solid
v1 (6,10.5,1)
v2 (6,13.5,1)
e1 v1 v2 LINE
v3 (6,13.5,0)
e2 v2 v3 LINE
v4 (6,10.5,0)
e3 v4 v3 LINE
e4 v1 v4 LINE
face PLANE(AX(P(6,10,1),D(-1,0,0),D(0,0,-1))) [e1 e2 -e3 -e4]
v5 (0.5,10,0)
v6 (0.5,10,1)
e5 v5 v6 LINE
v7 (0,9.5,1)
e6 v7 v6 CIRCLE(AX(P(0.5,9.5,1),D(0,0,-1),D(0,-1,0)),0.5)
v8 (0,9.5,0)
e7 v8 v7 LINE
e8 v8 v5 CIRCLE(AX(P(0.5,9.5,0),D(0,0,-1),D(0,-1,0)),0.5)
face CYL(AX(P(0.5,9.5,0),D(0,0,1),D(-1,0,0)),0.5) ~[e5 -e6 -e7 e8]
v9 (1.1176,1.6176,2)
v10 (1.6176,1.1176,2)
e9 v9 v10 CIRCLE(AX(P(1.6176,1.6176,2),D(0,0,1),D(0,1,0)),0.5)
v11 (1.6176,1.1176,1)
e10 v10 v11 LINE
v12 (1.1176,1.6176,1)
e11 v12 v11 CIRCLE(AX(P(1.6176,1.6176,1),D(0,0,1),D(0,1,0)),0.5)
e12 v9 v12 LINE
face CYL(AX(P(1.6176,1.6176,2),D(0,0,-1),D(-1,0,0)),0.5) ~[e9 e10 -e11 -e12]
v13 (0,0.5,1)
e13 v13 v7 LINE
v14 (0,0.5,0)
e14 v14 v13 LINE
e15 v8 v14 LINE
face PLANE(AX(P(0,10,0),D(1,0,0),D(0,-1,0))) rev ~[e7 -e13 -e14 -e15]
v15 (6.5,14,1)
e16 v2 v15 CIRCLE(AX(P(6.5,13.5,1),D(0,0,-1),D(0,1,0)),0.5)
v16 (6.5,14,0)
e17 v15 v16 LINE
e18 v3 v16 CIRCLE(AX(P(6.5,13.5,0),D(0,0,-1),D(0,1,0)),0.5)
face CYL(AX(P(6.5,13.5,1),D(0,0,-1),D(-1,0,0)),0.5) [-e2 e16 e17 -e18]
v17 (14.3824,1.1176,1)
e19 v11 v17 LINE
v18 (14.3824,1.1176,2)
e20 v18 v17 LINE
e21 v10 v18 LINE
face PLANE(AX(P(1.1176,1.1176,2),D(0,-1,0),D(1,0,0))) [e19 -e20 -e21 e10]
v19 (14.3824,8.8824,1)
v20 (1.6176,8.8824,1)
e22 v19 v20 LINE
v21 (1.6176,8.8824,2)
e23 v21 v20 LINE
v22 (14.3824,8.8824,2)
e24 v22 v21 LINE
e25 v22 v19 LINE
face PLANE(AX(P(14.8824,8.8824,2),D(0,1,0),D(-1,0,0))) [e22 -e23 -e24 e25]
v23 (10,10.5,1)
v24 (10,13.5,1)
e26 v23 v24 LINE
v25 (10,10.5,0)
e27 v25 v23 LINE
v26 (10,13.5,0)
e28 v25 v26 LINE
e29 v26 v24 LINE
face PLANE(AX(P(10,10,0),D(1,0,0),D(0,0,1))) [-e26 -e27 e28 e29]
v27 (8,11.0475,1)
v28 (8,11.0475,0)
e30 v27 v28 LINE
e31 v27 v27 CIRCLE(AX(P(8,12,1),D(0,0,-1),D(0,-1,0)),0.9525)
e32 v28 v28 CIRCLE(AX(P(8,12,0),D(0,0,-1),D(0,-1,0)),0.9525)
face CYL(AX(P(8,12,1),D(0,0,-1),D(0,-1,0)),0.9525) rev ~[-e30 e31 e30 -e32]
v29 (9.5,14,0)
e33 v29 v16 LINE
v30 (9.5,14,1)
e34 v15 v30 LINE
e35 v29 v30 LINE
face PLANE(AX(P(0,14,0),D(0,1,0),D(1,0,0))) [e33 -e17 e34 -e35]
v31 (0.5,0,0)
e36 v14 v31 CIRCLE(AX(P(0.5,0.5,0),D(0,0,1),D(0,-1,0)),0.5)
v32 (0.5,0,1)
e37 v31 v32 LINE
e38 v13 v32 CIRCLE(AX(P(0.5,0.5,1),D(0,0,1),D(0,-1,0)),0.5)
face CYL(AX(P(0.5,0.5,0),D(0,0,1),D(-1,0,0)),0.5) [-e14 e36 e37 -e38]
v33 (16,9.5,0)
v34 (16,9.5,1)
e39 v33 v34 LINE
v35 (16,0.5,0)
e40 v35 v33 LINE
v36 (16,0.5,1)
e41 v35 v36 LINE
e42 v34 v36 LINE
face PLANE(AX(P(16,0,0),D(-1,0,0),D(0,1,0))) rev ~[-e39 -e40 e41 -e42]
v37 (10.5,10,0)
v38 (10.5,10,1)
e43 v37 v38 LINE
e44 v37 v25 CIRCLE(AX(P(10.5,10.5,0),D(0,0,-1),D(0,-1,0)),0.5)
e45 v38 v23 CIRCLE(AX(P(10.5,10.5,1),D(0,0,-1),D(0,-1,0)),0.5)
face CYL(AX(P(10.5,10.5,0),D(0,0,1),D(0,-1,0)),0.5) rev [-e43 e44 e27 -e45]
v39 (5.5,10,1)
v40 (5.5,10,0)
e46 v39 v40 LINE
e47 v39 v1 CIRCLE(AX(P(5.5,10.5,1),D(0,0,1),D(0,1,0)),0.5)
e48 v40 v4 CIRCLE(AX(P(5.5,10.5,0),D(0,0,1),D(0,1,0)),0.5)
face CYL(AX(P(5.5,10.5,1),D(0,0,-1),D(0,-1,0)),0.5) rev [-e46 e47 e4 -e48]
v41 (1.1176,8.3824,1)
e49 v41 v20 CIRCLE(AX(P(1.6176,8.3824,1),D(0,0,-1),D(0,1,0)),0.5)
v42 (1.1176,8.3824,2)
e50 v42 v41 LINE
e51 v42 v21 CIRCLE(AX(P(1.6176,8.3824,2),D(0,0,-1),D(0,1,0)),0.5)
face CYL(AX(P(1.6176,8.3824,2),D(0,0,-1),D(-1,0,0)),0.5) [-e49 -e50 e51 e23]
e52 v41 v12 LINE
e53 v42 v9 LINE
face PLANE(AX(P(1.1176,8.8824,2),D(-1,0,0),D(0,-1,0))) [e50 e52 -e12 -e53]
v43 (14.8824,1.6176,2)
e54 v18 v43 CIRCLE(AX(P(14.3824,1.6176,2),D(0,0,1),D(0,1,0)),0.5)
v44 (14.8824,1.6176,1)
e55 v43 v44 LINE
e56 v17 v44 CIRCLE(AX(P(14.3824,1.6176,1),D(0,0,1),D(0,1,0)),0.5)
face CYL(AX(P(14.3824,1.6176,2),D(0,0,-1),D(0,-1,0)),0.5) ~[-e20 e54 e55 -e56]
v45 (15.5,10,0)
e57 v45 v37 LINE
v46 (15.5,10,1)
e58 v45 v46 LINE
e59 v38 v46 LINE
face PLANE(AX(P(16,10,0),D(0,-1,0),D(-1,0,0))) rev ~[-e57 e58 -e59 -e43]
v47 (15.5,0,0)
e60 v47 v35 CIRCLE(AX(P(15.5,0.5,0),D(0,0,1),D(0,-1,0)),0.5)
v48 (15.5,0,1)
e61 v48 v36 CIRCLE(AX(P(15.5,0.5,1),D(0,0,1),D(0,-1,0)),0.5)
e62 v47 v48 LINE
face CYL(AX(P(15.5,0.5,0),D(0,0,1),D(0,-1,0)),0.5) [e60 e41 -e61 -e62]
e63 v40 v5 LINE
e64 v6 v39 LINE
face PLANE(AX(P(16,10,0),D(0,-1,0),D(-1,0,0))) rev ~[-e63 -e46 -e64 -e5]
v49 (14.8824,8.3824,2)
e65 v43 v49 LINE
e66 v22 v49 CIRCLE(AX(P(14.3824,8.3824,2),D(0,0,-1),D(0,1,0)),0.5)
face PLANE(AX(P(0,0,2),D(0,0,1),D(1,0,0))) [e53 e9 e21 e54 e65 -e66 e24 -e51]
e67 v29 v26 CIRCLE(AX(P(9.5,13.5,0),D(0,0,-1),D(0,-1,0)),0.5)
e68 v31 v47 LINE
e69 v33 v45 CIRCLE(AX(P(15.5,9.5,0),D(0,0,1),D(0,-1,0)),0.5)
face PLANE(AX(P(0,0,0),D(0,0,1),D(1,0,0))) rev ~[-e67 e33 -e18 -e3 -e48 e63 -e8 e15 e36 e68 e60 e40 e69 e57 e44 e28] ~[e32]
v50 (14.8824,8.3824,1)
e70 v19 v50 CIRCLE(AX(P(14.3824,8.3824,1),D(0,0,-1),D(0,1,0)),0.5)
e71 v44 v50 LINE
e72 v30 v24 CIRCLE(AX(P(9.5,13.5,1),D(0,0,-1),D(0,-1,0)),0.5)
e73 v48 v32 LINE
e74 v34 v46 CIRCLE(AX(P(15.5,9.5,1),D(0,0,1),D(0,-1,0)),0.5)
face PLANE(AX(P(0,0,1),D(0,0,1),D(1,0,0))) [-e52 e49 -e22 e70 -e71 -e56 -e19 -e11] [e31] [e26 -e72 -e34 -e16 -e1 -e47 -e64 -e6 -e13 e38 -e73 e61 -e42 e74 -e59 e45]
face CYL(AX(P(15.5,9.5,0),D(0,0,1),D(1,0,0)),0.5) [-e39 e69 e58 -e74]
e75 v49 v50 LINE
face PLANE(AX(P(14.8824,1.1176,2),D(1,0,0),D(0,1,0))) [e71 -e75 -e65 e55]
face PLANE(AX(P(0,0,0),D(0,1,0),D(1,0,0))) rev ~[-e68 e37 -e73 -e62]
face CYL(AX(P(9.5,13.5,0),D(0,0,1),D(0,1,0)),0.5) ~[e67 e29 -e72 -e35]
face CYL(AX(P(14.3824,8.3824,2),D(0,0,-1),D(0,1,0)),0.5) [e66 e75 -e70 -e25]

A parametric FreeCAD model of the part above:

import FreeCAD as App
import Part
import Sketcher


def edges_at(feature, points):
    """Names of the edges that pass closest to the given points."""
    edges = feature.Shape.Edges
    near = lambda p: min(range(len(edges)), key=lambda i: edges[i].distToShape(Part.Vertex(*p))[0])
    return sorted({f"Edge{near(p) + 1}" for p in points})

doc = App.newDocument("Part")
body = doc.addObject("PartDesign::Body", "Body")

# Sketch on XY plane
sketch1 = doc.addObject("Sketcher::SketchObject", "Sketch")
body.addObject(sketch1)
sketch1.AttachmentSupport = (doc.XY_Plane, [""])
sketch1.MapMode = "FlatFace"
sketch1.addGeometry([
    Part.LineSegment(App.Vector(0, 10, 0), App.Vector(0, 0, 0)),
    Part.LineSegment(App.Vector(0, 0, 0), App.Vector(16, 0, 0)),
    Part.LineSegment(App.Vector(16, 0, 0), App.Vector(16, 10, 0)),
    Part.LineSegment(App.Vector(16, 10, 0), App.Vector(0, 10, 0)),
], False)
sketch1.addConstraint([
    Sketcher.Constraint("Coincident", 0, 2, 1, 1),
    Sketcher.Constraint("Coincident", 1, 2, 2, 1),
    Sketcher.Constraint("Coincident", 2, 2, 3, 1),
    Sketcher.Constraint("Coincident", 3, 2, 0, 1),
    Sketcher.Constraint("Vertical", 0),
    Sketcher.Constraint("Horizontal", 1),
    Sketcher.Constraint("Vertical", 2),
    Sketcher.Constraint("Horizontal", 3),
    Sketcher.Constraint("Coincident", 0, 2, -1, 1),
    Sketcher.Constraint("DistanceX", 1, 1, 1, 2, 16.0),
    Sketcher.Constraint("DistanceY", 0, 2, 0, 1, 10.0),
])
pad1 = doc.addObject("PartDesign::Pad", "Pad")
body.addObject(pad1)
pad1.Profile = sketch1
pad1.Length = 2

# Sketch on XY plane
sketch2 = doc.addObject("Sketcher::SketchObject", "Sketch001")
body.addObject(sketch2)
sketch2.AttachmentSupport = (doc.XY_Plane, [""])
sketch2.MapMode = "FlatFace"
sketch2.AttachmentOffset = App.Placement(App.Vector(0, 0, 2), App.Rotation())
sketch2.addGeometry([
    Part.LineSegment(App.Vector(0, 10, 0), App.Vector(0, 0, 0)),  # 0
    Part.LineSegment(App.Vector(0, 0, 0), App.Vector(16, 0, 0)),  # 1
    Part.LineSegment(App.Vector(16, 0, 0), App.Vector(16, 10, 0)),  # 2
    Part.LineSegment(App.Vector(16, 10, 0), App.Vector(0, 10, 0)),  # 3
    Part.LineSegment(App.Vector(1, 1, 0), App.Vector(1, 9, 0)),  # 4
    Part.LineSegment(App.Vector(1, 9, 0), App.Vector(15, 9, 0)),  # 5
    Part.LineSegment(App.Vector(15, 9, 0), App.Vector(15, 1, 0)),  # 6
    Part.LineSegment(App.Vector(15, 1, 0), App.Vector(1, 1, 0)),  # 7
], False)
sketch2.addConstraint([
    Sketcher.Constraint("Coincident", 0, 2, 1, 1),
    Sketcher.Constraint("Coincident", 1, 2, 2, 1),
    Sketcher.Constraint("Coincident", 2, 2, 3, 1),
    Sketcher.Constraint("Coincident", 3, 2, 0, 1),
    Sketcher.Constraint("Coincident", 4, 2, 5, 1),
    Sketcher.Constraint("Coincident", 5, 2, 6, 1),
    Sketcher.Constraint("Coincident", 6, 2, 7, 1),
    Sketcher.Constraint("Coincident", 7, 2, 4, 1),
    Sketcher.Constraint("Vertical", 0),
    Sketcher.Constraint("Horizontal", 1),
    Sketcher.Constraint("Vertical", 2),
    Sketcher.Constraint("Horizontal", 3),
    Sketcher.Constraint("Vertical", 4),
    Sketcher.Constraint("Horizontal", 5),
    Sketcher.Constraint("Vertical", 6),
    Sketcher.Constraint("Horizontal", 7),
    Sketcher.Constraint("Coincident", 0, 2, -1, 1),
    Sketcher.Constraint("DistanceX", 1, 1, 1, 2, 16.0),
    Sketcher.Constraint("DistanceY", 0, 2, 0, 1, 10.0),
    Sketcher.Constraint("DistanceX", -1, 1, 4, 2, 1.1176),
    Sketcher.Constraint("DistanceY", -1, 1, 6, 2, 1.1176),
    Sketcher.Constraint("DistanceY", 4, 2, 3, 2, 1.1176),
    Sketcher.Constraint("DistanceX", 5, 2, 2, 2, 1.1176),
])
pocket1 = doc.addObject("PartDesign::Pocket", "Pocket")
body.addObject(pocket1)
pocket1.Profile = sketch2
pocket1.Length = 1

# Sketch on XZ plane
sketch3 = doc.addObject("Sketcher::SketchObject", "Sketch002")
body.addObject(sketch3)
sketch3.AttachmentSupport = (doc.XZ_Plane, [""])
sketch3.MapMode = "FlatFace"
sketch3.AttachmentOffset = App.Placement(App.Vector(0, 0, -10), App.Rotation())
sketch3.addGeometry([
    Part.LineSegment(App.Vector(6, 0, 0), App.Vector(6, 1, 0)),
    Part.LineSegment(App.Vector(6, 1, 0), App.Vector(10, 1, 0)),
    Part.LineSegment(App.Vector(10, 1, 0), App.Vector(10, 0, 0)),
    Part.LineSegment(App.Vector(10, 0, 0), App.Vector(6, 0, 0)),
], False)
sketch3.addConstraint([
    Sketcher.Constraint("Coincident", 0, 2, 1, 1),
    Sketcher.Constraint("Coincident", 1, 2, 2, 1),
    Sketcher.Constraint("Coincident", 2, 2, 3, 1),
    Sketcher.Constraint("Coincident", 3, 2, 0, 1),
    Sketcher.Constraint("Vertical", 0),
    Sketcher.Constraint("Horizontal", 1),
    Sketcher.Constraint("Vertical", 2),
    Sketcher.Constraint("Horizontal", 3),
    Sketcher.Constraint("PointOnObject", 2, 2, -1),
    Sketcher.Constraint("DistanceX", 1, 1, 1, 2, 4.0),
    Sketcher.Constraint("DistanceX", -1, 1, 0, 2, 6.0),
    Sketcher.Constraint("DistanceY", 0, 1, 0, 2, 1.0),
])
pad2 = doc.addObject("PartDesign::Pad", "Pad001")
body.addObject(pad2)
pad2.Profile = sketch3
pad2.Length = 4
pad2.Reversed = True

# Sketch on XY plane
sketch4 = doc.addObject("Sketcher::SketchObject", "Sketch003")
body.addObject(sketch4)
sketch4.AttachmentSupport = (doc.XY_Plane, [""])
sketch4.MapMode = "FlatFace"
sketch4.AttachmentOffset = App.Placement(App.Vector(0, 0, 1), App.Rotation())
sketch4.addGeometry(Part.Circle(App.Vector(8, 12, 0), App.Vector(0, 0, 1), 1), False)
sketch4.addConstraint([
    Sketcher.Constraint("Diameter", 0, 1.905),
    Sketcher.Constraint("DistanceX", -1, 1, 0, 3, 8.0),
    Sketcher.Constraint("DistanceY", -1, 1, 0, 3, 12.0),
])
doc.recompute()
hole = doc.addObject("PartDesign::Hole", "Hole")
body.addObject(hole)
hole.Profile = sketch4
hole.ThreadType = "None"
hole.Diameter = 1.905
hole.DepthType = "ThroughAll"
doc.recompute()

fillet = doc.addObject("PartDesign::Fillet", "Fillet")
body.addObject(fillet)
fillet.Base = (hole, edges_at(hole, [
    (1.118, 1.118, 1.5),
    (0, 0, 0.5),
    (1.118, 8.882, 1.5),
    (0, 10, 0.5),
    (14.882, 1.118, 1.5),
    (16, 0, 0.5),
    (14.882, 8.882, 1.5),
    (16, 10, 0.5),
    (10, 10, 0.5),
    (6, 10, 0.5),
    (6, 14, 0.5),
    (10, 14, 0.5),
]))
fillet.Radius = 0.5

doc.recompute()
